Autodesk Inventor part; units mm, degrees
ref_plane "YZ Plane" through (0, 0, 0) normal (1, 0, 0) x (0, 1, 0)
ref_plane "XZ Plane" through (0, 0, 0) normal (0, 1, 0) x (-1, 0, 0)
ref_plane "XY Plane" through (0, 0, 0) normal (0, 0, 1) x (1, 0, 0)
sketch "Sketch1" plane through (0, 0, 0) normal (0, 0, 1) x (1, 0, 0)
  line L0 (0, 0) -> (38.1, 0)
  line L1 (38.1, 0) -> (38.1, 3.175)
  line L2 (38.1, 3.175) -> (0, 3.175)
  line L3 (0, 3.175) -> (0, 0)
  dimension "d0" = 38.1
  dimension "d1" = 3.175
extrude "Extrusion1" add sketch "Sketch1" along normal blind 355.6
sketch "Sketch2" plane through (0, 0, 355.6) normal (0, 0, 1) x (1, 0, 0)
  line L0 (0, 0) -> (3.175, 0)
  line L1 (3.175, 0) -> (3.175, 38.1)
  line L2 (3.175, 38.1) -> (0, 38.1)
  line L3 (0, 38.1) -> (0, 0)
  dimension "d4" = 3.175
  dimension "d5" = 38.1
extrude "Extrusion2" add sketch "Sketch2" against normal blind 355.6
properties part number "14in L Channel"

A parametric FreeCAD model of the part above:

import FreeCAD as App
import Part
import Sketcher
from FreeCAD import Vector
Q = App.Units.Quantity

doc = App.newDocument("Part")
body = doc.addObject("PartDesign::Body", "Body")

sketch1 = doc.addObject("Sketcher::SketchObject", "Sketch")
body.addObject(sketch1)
sketch1.AttachmentSupport = (doc.XY_Plane, [""])
sketch1.MapMode = "FlatFace"
sketch1.addGeometry([
    Part.LineSegment(Vector(0, 3.175, 0), Vector(0, 0, 0)),
    Part.LineSegment(Vector(0, 0, 0), Vector(38.1, 0, 0)),
    Part.LineSegment(Vector(38.1, 0, 0), Vector(38.1, 3.175, 0)),
    Part.LineSegment(Vector(38.1, 3.175, 0), Vector(0, 3.175, 0)),
], False)
sketch1.addConstraint([
    Sketcher.Constraint("Coincident", 0, 2, 1, 1),
    Sketcher.Constraint("Coincident", 1, 2, 2, 1),
    Sketcher.Constraint("Coincident", 2, 2, 3, 1),
    Sketcher.Constraint("Coincident", 3, 2, 0, 1),
    Sketcher.Constraint("Vertical", 0),
    Sketcher.Constraint("Horizontal", 1),
    Sketcher.Constraint("Vertical", 2),
    Sketcher.Constraint("Horizontal", 3),
    Sketcher.Constraint("Coincident", 0, 2, -1, 1),
    Sketcher.Constraint("DistanceX", 1, 1, 1, 2, Q("1.5 in")),
    Sketcher.Constraint("DistanceY", 0, 2, 0, 1, Q("0.125 in")),
])
pad1 = doc.addObject("PartDesign::Pad", "Pad")
body.addObject(pad1)
pad1.Profile = sketch1
pad1.Length = Q("14 in")

sketch2 = doc.addObject("Sketcher::SketchObject", "Sketch001")
body.addObject(sketch2)
sketch2.AttachmentSupport = (doc.XY_Plane, [""])
sketch2.MapMode = "FlatFace"
sketch2.AttachmentOffset = App.Placement(Vector(0, 0, 14 * 25.4), App.Rotation())
sketch2.addGeometry([
    Part.LineSegment(Vector(0, 38.1, 0), Vector(0, 0, 0)),
    Part.LineSegment(Vector(0, 0, 0), Vector(3.175, 0, 0)),
    Part.LineSegment(Vector(3.175, 0, 0), Vector(3.175, 38.1, 0)),
    Part.LineSegment(Vector(3.175, 38.1, 0), Vector(0, 38.1, 0)),
], False)
sketch2.addConstraint([
    Sketcher.Constraint("Coincident", 0, 2, 1, 1),
    Sketcher.Constraint("Coincident", 1, 2, 2, 1),
    Sketcher.Constraint("Coincident", 2, 2, 3, 1),
    Sketcher.Constraint("Coincident", 3, 2, 0, 1),
    Sketcher.Constraint("Vertical", 0),
    Sketcher.Constraint("Horizontal", 1),
    Sketcher.Constraint("Vertical", 2),
    Sketcher.Constraint("Horizontal", 3),
    Sketcher.Constraint("Coincident", 0, 2, -1, 1),
    Sketcher.Constraint("DistanceY", 0, 2, 0, 1, Q("1.5 in")),
    Sketcher.Constraint("DistanceX", 1, 1, 1, 2, Q("0.125 in")),
])
pad2 = doc.addObject("PartDesign::Pad", "Pad001")
body.addObject(pad2)
pad2.Profile = sketch2
pad2.Length = Q("14 in")
pad2.Reversed = True

doc.recompute()
